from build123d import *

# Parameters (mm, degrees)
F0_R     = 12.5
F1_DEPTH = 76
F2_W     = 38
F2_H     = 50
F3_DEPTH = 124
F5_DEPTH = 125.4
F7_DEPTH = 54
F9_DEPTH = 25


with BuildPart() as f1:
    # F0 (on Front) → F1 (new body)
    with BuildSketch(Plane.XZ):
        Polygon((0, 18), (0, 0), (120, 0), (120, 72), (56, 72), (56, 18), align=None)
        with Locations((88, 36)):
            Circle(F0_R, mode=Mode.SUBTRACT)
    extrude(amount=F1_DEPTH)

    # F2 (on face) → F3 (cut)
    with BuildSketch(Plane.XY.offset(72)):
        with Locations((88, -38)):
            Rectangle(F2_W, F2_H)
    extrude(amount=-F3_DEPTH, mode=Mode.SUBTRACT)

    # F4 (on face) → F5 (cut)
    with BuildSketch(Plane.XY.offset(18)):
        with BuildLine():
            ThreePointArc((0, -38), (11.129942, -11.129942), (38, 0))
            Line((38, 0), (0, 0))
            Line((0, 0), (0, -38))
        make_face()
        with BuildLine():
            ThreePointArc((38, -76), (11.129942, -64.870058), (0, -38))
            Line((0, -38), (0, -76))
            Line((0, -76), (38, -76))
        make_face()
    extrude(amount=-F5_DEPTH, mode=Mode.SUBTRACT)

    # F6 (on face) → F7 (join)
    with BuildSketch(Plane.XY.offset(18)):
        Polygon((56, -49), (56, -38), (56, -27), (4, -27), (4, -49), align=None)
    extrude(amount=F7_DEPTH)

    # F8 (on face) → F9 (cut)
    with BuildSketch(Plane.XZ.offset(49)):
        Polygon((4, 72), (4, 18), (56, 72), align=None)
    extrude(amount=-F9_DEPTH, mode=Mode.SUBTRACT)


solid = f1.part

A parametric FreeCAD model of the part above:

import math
import FreeCAD as App
import Part
import Sketcher

doc = App.newDocument("Part")
params = doc.addObject("Spreadsheet::Sheet", "Params")
for row, (alias, value) in enumerate([
    ("sketch1_diameter", "25 mm"),
    ("sketch1_width", "120 mm"),
    ("sketch1_width2", "64 mm"),
    ("sketch1_height", "18 mm"),
    ("sketch1_height2", "72 mm"),
    ("pad1_length", "76 mm"),
    ("sketch2_width", "38 mm"),
    ("sketch2_height", "50 mm"),
    ("pocket1_length", "124 mm"),
    ("sketch3_radius", "37.999999 mm"),
    ("pocket2_length", "125.4 mm"),
    ("sketch4_width", "52 mm"),
    ("sketch4_height", "22 mm"),
    ("pad2_length", "54 mm"),
    ("sketch5_width", "52 mm"),
    ("sketch5_height", "54 mm"),
    ("pocket3_length", "25 mm"),
], start=1):
    params.set(f"A{row}", alias)
    params.set(f"B{row}", "=" + value)
    params.setAlias(f"B{row}", alias)

body = doc.addObject("PartDesign::Body", "Body")

sketch1 = body.newObject("Sketcher::SketchObject", "Sketch")
sketch1.AttachmentSupport = (doc.getObject("XZ_Plane"), [""])
sketch1.MapMode = "FlatFace"
sketch1.addGeometry([
    Part.LineSegment(App.Vector(0, 18, 0), App.Vector(0, 0, 0)),
    Part.LineSegment(App.Vector(0, 0, 0), App.Vector(120, 0, 0)),
    Part.LineSegment(App.Vector(120, 0, 0), App.Vector(120, 72, 0)),
    Part.LineSegment(App.Vector(120, 72, 0), App.Vector(56, 72, 0)),
    Part.LineSegment(App.Vector(56, 72, 0), App.Vector(56, 18, 0)),
    Part.LineSegment(App.Vector(56, 18, 0), App.Vector(0, 18, 0)),
    Part.Circle(App.Vector(88, 36, 0), App.Vector(0, 0, 1), 12),
], False)
sketch1.addConstraint([
    Sketcher.Constraint("Coincident", 0, 2, 1, 1),
    Sketcher.Constraint("Coincident", 1, 2, 2, 1),
    Sketcher.Constraint("Coincident", 2, 2, 3, 1),
    Sketcher.Constraint("Coincident", 3, 2, 4, 1),
    Sketcher.Constraint("Coincident", 4, 2, 5, 1),
    Sketcher.Constraint("Coincident", 5, 2, 0, 1),
    Sketcher.Constraint("Vertical", 0),
    Sketcher.Constraint("Horizontal", 1),
    Sketcher.Constraint("Vertical", 2),
    Sketcher.Constraint("Horizontal", 3),
    Sketcher.Constraint("Vertical", 4),
    Sketcher.Constraint("Horizontal", 5),
    Sketcher.Constraint("Coincident", 0, 2, -1, 1),
    Sketcher.Constraint("Diameter", 6, 25.0),
    Sketcher.Constraint("DistanceX", 1, 1, 1, 2, 120.0),
    Sketcher.Constraint("DistanceX", 3, 2, 3, 1, 64.0),
    Sketcher.Constraint("DistanceY", 0, 2, 0, 1, 18.0),
    Sketcher.Constraint("DistanceY", 2, 1, 2, 2, 72.0),
    Sketcher.Constraint("DistanceX", -1, 1, 6, 3, 88.0),
    Sketcher.Constraint("DistanceY", -1, 1, 6, 3, 36.0),
])
sketch1.setExpression("Constraints[13]", "Params.sketch1_diameter")
sketch1.setExpression("Constraints[14]", "Params.sketch1_width")
sketch1.setExpression("Constraints[15]", "Params.sketch1_width2")
sketch1.setExpression("Constraints[16]", "Params.sketch1_height")
sketch1.setExpression("Constraints[17]", "Params.sketch1_height2")
pad1 = body.newObject("PartDesign::Pad", "Pad")
pad1.Profile = sketch1
pad1.setExpression("Length", "Params.pad1_length")

sketch2 = body.newObject("Sketcher::SketchObject", "Sketch001")
sketch2.AttachmentSupport = (doc.getObject("XY_Plane"), [""])
sketch2.MapMode = "FlatFace"
sketch2.AttachmentOffset = App.Placement(App.Vector(0, 0, 72), App.Rotation())
sketch2.addGeometry([
    Part.LineSegment(App.Vector(69, -13, 0), App.Vector(69, -63, 0)),
    Part.LineSegment(App.Vector(69, -63, 0), App.Vector(107, -63, 0)),
    Part.LineSegment(App.Vector(107, -63, 0), App.Vector(107, -13, 0)),
    Part.LineSegment(App.Vector(107, -13, 0), App.Vector(69, -13, 0)),
], False)
sketch2.addConstraint([
    Sketcher.Constraint("Coincident", 0, 2, 1, 1),
    Sketcher.Constraint("Coincident", 1, 2, 2, 1),
    Sketcher.Constraint("Coincident", 2, 2, 3, 1),
    Sketcher.Constraint("Coincident", 3, 2, 0, 1),
    Sketcher.Constraint("Vertical", 0),
    Sketcher.Constraint("Horizontal", 1),
    Sketcher.Constraint("Vertical", 2),
    Sketcher.Constraint("Horizontal", 3),
    Sketcher.Constraint("DistanceX", 1, 1, 1, 2, 38.0),
    Sketcher.Constraint("DistanceY", 0, 2, 0, 1, 50.0),
    Sketcher.Constraint("DistanceX", -1, 1, 0, 2, 69.0),
    Sketcher.Constraint("DistanceY", 0, 2, -1, 1, 63.0),
])
sketch2.setExpression("Constraints[8]", "Params.sketch2_width")
sketch2.setExpression("Constraints[9]", "Params.sketch2_height")
pocket1 = body.newObject("PartDesign::Pocket", "Pocket")
pocket1.Profile = sketch2
pocket1.setExpression("Length", "Params.pocket1_length")

sketch3 = body.newObject("Sketcher::SketchObject", "Sketch002")
sketch3.AttachmentSupport = (doc.getObject("XY_Plane"), [""])
sketch3.MapMode = "FlatFace"
sketch3.AttachmentOffset = App.Placement(App.Vector(0, 0, 18), App.Rotation())
sketch3.addGeometry([
    Part.ArcOfCircle(Part.Circle(App.Vector(38, -38, 0), App.Vector(0, 0, 1), 38), math.radians(90), math.radians(180)),
    Part.LineSegment(App.Vector(38, 0, 0), App.Vector(0, 0, 0)),
    Part.LineSegment(App.Vector(0, 0, 0), App.Vector(0, -38, 0)),
    Part.ArcOfCircle(Part.Circle(App.Vector(38, -38, 0), App.Vector(0, 0, 1), 38), math.radians(180), math.radians(270)),
    Part.LineSegment(App.Vector(0, -38, 0), App.Vector(0, -76, 0)),
    Part.LineSegment(App.Vector(0, -76, 0), App.Vector(38, -76, 0)),
], False)
sketch3.addConstraint([
    Sketcher.Constraint("Tangent", 0, 1, 1, 1),
    Sketcher.Constraint("Coincident", 1, 2, 2, 1),
    Sketcher.Constraint("Tangent", 2, 2, 0, 2),
    Sketcher.Constraint("Tangent", 3, 1, 4, 1),
    Sketcher.Constraint("Coincident", 4, 2, 5, 1),
    Sketcher.Constraint("Tangent", 5, 2, 3, 2),
    Sketcher.Constraint("Horizontal", 1),
    Sketcher.Constraint("Vertical", 2),
    Sketcher.Constraint("Vertical", 4),
    Sketcher.Constraint("Horizontal", 5),
    Sketcher.Constraint("Coincident", 1, 2, -1, 1),
    Sketcher.Constraint("Coincident", 3, 3, 0, 3),
    Sketcher.Constraint("Equal", 0, 3),
    Sketcher.Constraint("Radius", 0, 37.999999),
])
sketch3.setExpression("Constraints[13]", "Params.sketch3_radius")
pocket2 = body.newObject("PartDesign::Pocket", "Pocket001")
pocket2.Profile = sketch3
pocket2.setExpression("Length", "Params.pocket2_length")

sketch4 = body.newObject("Sketcher::SketchObject", "Sketch003")
sketch4.AttachmentSupport = (doc.getObject("XY_Plane"), [""])
sketch4.MapMode = "FlatFace"
sketch4.AttachmentOffset = App.Placement(App.Vector(0, 0, 18), App.Rotation())
sketch4.addGeometry([
    Part.LineSegment(App.Vector(56, -49, 0), App.Vector(56, -27, 0)),
    Part.LineSegment(App.Vector(56, -27, 0), App.Vector(4, -27, 0)),
    Part.LineSegment(App.Vector(4, -27, 0), App.Vector(4, -49, 0)),
    Part.LineSegment(App.Vector(4, -49, 0), App.Vector(56, -49, 0)),
], False)
sketch4.addConstraint([
    Sketcher.Constraint("Coincident", 0, 2, 1, 1),
    Sketcher.Constraint("Coincident", 1, 2, 2, 1),
    Sketcher.Constraint("Coincident", 2, 2, 3, 1),
    Sketcher.Constraint("Coincident", 3, 2, 0, 1),
    Sketcher.Constraint("Vertical", 0),
    Sketcher.Constraint("Horizontal", 1),
    Sketcher.Constraint("Vertical", 2),
    Sketcher.Constraint("Horizontal", 3),
    Sketcher.Constraint("DistanceX", 1, 2, 1, 1, 52.0),
    Sketcher.Constraint("DistanceY", 0, 1, 0, 2, 22.0),
    Sketcher.Constraint("DistanceX", -1, 1, 0, 2, 56.0),
    Sketcher.Constraint("DistanceY", 0, 2, -1, 1, 27.0),
])
sketch4.setExpression("Constraints[8]", "Params.sketch4_width")
sketch4.setExpression("Constraints[9]", "Params.sketch4_height")
pad2 = body.newObject("PartDesign::Pad", "Pad001")
pad2.Profile = sketch4
pad2.setExpression("Length", "Params.pad2_length")

sketch5 = body.newObject("Sketcher::SketchObject", "Sketch004")
sketch5.AttachmentSupport = (doc.getObject("XZ_Plane"), [""])
sketch5.MapMode = "FlatFace"
sketch5.AttachmentOffset = App.Placement(App.Vector(0, 0, 49), App.Rotation())
sketch5.addGeometry([
    Part.LineSegment(App.Vector(4, 72, 0), App.Vector(4, 18, 0)),
    Part.LineSegment(App.Vector(4, 18, 0), App.Vector(56, 72, 0)),
    Part.LineSegment(App.Vector(56, 72, 0), App.Vector(4, 72, 0)),
], False)
sketch5.addConstraint([
    Sketcher.Constraint("Coincident", 0, 2, 1, 1),
    Sketcher.Constraint("Coincident", 1, 2, 2, 1),
    Sketcher.Constraint("Coincident", 2, 2, 0, 1),
    Sketcher.Constraint("Vertical", 0),
    Sketcher.Constraint("Horizontal", 2),
    Sketcher.Constraint("DistanceX", 2, 2, 2, 1, 52.0),
    Sketcher.Constraint("DistanceY", 0, 2, 0, 1, 54.0),
    Sketcher.Constraint("DistanceX", -1, 1, 0, 2, 4.0),
    Sketcher.Constraint("DistanceY", -1, 1, 0, 2, 18.0),
])
sketch5.setExpression("Constraints[5]", "Params.sketch5_width")
sketch5.setExpression("Constraints[6]", "Params.sketch5_height")
pocket3 = body.newObject("PartDesign::Pocket", "Pocket002")
pocket3.Profile = sketch5
pocket3.setExpression("Length", "Params.pocket3_length")

doc.recompute()
